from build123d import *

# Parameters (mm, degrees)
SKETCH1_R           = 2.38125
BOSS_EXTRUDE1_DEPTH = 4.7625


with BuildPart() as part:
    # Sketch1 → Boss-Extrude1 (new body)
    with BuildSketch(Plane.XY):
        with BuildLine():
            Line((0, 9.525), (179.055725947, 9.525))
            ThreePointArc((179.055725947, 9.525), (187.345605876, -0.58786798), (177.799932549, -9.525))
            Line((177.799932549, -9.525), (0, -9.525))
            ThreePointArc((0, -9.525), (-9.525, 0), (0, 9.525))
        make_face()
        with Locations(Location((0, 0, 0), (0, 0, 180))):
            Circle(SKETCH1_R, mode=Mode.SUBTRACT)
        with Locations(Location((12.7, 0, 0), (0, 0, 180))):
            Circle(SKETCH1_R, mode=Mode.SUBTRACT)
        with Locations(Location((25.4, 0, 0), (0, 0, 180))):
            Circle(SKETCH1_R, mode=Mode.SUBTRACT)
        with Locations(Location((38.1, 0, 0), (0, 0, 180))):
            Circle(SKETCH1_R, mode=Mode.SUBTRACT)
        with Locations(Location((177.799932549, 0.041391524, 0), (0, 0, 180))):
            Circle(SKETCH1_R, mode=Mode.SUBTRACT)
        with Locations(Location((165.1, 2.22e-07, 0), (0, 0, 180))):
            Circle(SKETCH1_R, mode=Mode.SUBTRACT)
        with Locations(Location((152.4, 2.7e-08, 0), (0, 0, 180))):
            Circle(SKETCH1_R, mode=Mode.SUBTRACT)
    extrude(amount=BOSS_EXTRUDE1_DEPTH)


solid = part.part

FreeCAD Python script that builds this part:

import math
import FreeCAD as App
import Part
import Sketcher
Q = App.Units.Quantity

doc = App.newDocument("Part")
body = doc.addObject("PartDesign::Body", "Body")

# Sketch on XY plane
sketch1 = doc.addObject("Sketcher::SketchObject", "Sketch")
body.addObject(sketch1)
sketch1.AttachmentSupport = (doc.XY_Plane, [""])
sketch1.MapMode = "FlatFace"
sketch1.addGeometry([
    Part.LineSegment(App.Vector(179.1, 9.5, 0), App.Vector(0, 9.5, 0)),  # 0
    Part.ArcOfCircle(Part.Circle(App.Vector(0, 0, 0), App.Vector(0, 0, 1), 9.5), math.radians(90), math.radians(270)),  # 1
    Part.LineSegment(App.Vector(0, -9.5, 0), App.Vector(177.8, -9.5, 0)),  # 2
    Part.ArcOfCircle(Part.Circle(App.Vector(177.8, 0, 0), App.Vector(0, 0, 1), 9.6), math.radians(-90), math.radians(82)),  # 3
    Part.Circle(App.Vector(165.1, 0, 0), App.Vector(0, 0, 1), 2.4),  # 4
    Part.Circle(App.Vector(152.4, 0, 0), App.Vector(0, 0, 1), 2.4),  # 5
    Part.Circle(App.Vector(38.1, 0, 0), App.Vector(0, 0, 1), 2.4),  # 6
    Part.Circle(App.Vector(25.4, 0, 0), App.Vector(0, 0, 1), 2.4),  # 7
    Part.Circle(App.Vector(12.7, 0, 0), App.Vector(0, 0, 1), 2.4),  # 8
    Part.Circle(App.Vector(0, 0, 0), App.Vector(0, 0, 1), 2.4),  # 9
    Part.Circle(App.Vector(177.8, 0, 0), App.Vector(0, 0, 1), 2.4),  # 10
], False)
sketch1.addConstraint([
    Sketcher.Constraint("Tangent", 0, 2, 1, 1),
    Sketcher.Constraint("Tangent", 1, 2, 2, 1),
    Sketcher.Constraint("Tangent", 2, 2, 3, 1),
    Sketcher.Constraint("Coincident", 3, 2, 0, 1),
    Sketcher.Constraint("Horizontal", 0),
    Sketcher.Constraint("Horizontal", 2),
    Sketcher.Constraint("Coincident", 1, 3, -1, 1),
    Sketcher.Constraint("Coincident", 9, 3, -1, 1),
    Sketcher.Constraint("Coincident", 10, 3, 3, 3),
    Sketcher.Constraint("Equal", 4, 5),
    Sketcher.Constraint("Equal", 5, 6),
    Sketcher.Constraint("Equal", 6, 7),
    Sketcher.Constraint("Equal", 7, 8),
    Sketcher.Constraint("Equal", 8, 9),
    Sketcher.Constraint("Equal", 9, 10),
    Sketcher.Constraint("PointOnObject", 4, 3, -1),
    Sketcher.Constraint("PointOnObject", 5, 3, -1),
    Sketcher.Constraint("PointOnObject", 6, 3, -1),
    Sketcher.Constraint("PointOnObject", 7, 3, -1),
    Sketcher.Constraint("PointOnObject", 8, 3, -1),
    Sketcher.Constraint("Diameter", 4, Q("0.1875 in")),
    Sketcher.Constraint("DistanceX", -1, 1, 5, 3, Q("6 in")),
    Sketcher.Constraint("DistanceX", -1, 1, 7, 3, Q("1 in")),
    Sketcher.Constraint("Radius", 1, Q("0.375 in")),
    Sketcher.Constraint("DistanceX", 6, 3, 4, 3, Q("5 in")),
    Sketcher.Constraint("DistanceX", 8, 3, 6, 3, Q("1 in")),
    Sketcher.Constraint("DistanceX", -1, 1, 4, 3, Q("6.5 in")),
    Sketcher.Constraint("Radius", 3, 9.566392),
    Sketcher.Constraint("DistanceX", 0, 2, 0, 1, 179.055726),
])
pad1 = doc.addObject("PartDesign::Pad", "Pad")
body.addObject(pad1)
pad1.Profile = sketch1
pad1.Length = Q("0.1875 in")

doc.recompute()
